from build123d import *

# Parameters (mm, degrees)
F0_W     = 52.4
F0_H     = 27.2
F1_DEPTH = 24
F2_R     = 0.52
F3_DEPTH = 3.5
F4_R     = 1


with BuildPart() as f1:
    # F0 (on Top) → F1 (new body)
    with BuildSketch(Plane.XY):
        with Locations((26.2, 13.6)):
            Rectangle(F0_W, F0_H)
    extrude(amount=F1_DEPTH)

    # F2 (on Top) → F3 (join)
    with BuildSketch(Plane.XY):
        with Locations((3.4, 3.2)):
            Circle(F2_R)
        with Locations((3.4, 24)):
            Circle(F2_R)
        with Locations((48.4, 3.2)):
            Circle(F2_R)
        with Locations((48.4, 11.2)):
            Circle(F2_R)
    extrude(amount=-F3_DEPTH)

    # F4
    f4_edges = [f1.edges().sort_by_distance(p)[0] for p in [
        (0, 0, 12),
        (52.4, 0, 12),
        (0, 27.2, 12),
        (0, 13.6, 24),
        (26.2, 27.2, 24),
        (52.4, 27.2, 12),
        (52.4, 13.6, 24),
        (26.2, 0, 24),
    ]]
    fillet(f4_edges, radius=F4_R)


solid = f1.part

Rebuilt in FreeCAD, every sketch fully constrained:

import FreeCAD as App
import Part
import Sketcher
Q = App.Units.Quantity


def edges_at(feature, points):
    """Names of the edges that pass closest to the given points."""
    edges = feature.Shape.Edges
    near = lambda p: min(range(len(edges)), key=lambda i: edges[i].distToShape(Part.Vertex(*p))[0])
    return sorted({f"Edge{near(p) + 1}" for p in points})


def add_polygon(sketch, points):
    """Adds a closed chain of lines whose ends are joined by coincident constraints."""
    first, n = sketch.GeometryCount, len(points)
    for a, b in zip(points, points[1:] + points[:1]):
        sketch.addGeometry(Part.LineSegment(App.Vector(*a, 0), App.Vector(*b, 0)), False)
    for i in range(n):
        sketch.addConstraint(Sketcher.Constraint("Coincident", first + i, 2, first + (i + 1) % n, 1))

doc = App.newDocument("Part")
body = doc.addObject("PartDesign::Body", "Body")

# Sketch on XY plane
sketch1 = body.newObject("Sketcher::SketchObject", "Sketch")
sketch1.AttachmentSupport = (doc.getObject("XY_Plane"), [""])
sketch1.MapMode = "FlatFace"
add_polygon(sketch1, [(0, 27.2), (0, 0), (52.4, 0), (52.4, 27.2)])  # lines 0-3
sketch1.addConstraint(Sketcher.Constraint("Vertical", 0))
sketch1.addConstraint(Sketcher.Constraint("Horizontal", 1))
sketch1.addConstraint(Sketcher.Constraint("Vertical", 2))
sketch1.addConstraint(Sketcher.Constraint("Horizontal", 3))
sketch1.addConstraint(Sketcher.Constraint("Coincident", 0, 2, -1, 1))
sketch1.addConstraint(Sketcher.Constraint("DistanceX", 1, 1, 1, 2, Q("52.4 mm")))
sketch1.addConstraint(Sketcher.Constraint("DistanceY", 0, 2, 0, 1, Q("27.2 mm")))
pad1 = body.newObject("PartDesign::Pad", "Pad")
pad1.Profile = sketch1
pad1.Length = 24

# Sketch on XY plane
sketch2 = body.newObject("Sketcher::SketchObject", "Sketch001")
sketch2.AttachmentSupport = (doc.getObject("XY_Plane"), [""])
sketch2.MapMode = "FlatFace"
sketch2.addGeometry(Part.Circle(App.Vector(3.4, 3.2, 0), App.Vector(0, 0, 1), 0.52), False)
sketch2.addGeometry(Part.Circle(App.Vector(3.4, 24, 0), App.Vector(0, 0, 1), 0.52), False)
sketch2.addGeometry(Part.Circle(App.Vector(48.4, 3.2, 0), App.Vector(0, 0, 1), 0.52), False)
sketch2.addGeometry(Part.Circle(App.Vector(48.4, 11.2, 0), App.Vector(0, 0, 1), 0.52), False)
sketch2.addConstraint(Sketcher.Constraint("Equal", 0, 1))
sketch2.addConstraint(Sketcher.Constraint("Equal", 1, 2))
sketch2.addConstraint(Sketcher.Constraint("Equal", 2, 3))
sketch2.addConstraint(Sketcher.Constraint("Horizontal", 0, 3, 2, 3))
sketch2.addConstraint(Sketcher.Constraint("Vertical", 0, 3, 1, 3))
sketch2.addConstraint(Sketcher.Constraint("Vertical", 2, 3, 3, 3))
sketch2.addConstraint(Sketcher.Constraint("Diameter", 0, Q("1.04 mm")))
sketch2.addConstraint(Sketcher.Constraint("DistanceY", -1, 1, 1, 3, Q("24 mm")))
sketch2.addConstraint(Sketcher.Constraint("DistanceX", 0, 3, 2, 3, Q("45 mm")))
sketch2.addConstraint(Sketcher.Constraint("DistanceY", 2, 3, 3, 3, Q("8 mm")))
sketch2.addConstraint(Sketcher.Constraint("DistanceX", -1, 1, 0, 3, Q("3.4 mm")))
sketch2.addConstraint(Sketcher.Constraint("DistanceY", -1, 1, 0, 3, Q("3.2 mm")))
pad2 = body.newObject("PartDesign::Pad", "Pad001")
pad2.Profile = sketch2
pad2.Length = 3.5
pad2.Reversed = True
doc.recompute()

fillet = body.newObject("PartDesign::Fillet", "Fillet")
fillet.Base = (pad2, edges_at(pad2, [
    (0, 0, 12),
    (52.4, 0, 12),
    (0, 27.2, 12),
    (0, 13.6, 24),
    (26.2, 27.2, 24),
    (52.4, 27.2, 12),
    (52.4, 13.6, 24),
    (26.2, 0, 24),
]))
fillet.Radius = 1

doc.recompute()
